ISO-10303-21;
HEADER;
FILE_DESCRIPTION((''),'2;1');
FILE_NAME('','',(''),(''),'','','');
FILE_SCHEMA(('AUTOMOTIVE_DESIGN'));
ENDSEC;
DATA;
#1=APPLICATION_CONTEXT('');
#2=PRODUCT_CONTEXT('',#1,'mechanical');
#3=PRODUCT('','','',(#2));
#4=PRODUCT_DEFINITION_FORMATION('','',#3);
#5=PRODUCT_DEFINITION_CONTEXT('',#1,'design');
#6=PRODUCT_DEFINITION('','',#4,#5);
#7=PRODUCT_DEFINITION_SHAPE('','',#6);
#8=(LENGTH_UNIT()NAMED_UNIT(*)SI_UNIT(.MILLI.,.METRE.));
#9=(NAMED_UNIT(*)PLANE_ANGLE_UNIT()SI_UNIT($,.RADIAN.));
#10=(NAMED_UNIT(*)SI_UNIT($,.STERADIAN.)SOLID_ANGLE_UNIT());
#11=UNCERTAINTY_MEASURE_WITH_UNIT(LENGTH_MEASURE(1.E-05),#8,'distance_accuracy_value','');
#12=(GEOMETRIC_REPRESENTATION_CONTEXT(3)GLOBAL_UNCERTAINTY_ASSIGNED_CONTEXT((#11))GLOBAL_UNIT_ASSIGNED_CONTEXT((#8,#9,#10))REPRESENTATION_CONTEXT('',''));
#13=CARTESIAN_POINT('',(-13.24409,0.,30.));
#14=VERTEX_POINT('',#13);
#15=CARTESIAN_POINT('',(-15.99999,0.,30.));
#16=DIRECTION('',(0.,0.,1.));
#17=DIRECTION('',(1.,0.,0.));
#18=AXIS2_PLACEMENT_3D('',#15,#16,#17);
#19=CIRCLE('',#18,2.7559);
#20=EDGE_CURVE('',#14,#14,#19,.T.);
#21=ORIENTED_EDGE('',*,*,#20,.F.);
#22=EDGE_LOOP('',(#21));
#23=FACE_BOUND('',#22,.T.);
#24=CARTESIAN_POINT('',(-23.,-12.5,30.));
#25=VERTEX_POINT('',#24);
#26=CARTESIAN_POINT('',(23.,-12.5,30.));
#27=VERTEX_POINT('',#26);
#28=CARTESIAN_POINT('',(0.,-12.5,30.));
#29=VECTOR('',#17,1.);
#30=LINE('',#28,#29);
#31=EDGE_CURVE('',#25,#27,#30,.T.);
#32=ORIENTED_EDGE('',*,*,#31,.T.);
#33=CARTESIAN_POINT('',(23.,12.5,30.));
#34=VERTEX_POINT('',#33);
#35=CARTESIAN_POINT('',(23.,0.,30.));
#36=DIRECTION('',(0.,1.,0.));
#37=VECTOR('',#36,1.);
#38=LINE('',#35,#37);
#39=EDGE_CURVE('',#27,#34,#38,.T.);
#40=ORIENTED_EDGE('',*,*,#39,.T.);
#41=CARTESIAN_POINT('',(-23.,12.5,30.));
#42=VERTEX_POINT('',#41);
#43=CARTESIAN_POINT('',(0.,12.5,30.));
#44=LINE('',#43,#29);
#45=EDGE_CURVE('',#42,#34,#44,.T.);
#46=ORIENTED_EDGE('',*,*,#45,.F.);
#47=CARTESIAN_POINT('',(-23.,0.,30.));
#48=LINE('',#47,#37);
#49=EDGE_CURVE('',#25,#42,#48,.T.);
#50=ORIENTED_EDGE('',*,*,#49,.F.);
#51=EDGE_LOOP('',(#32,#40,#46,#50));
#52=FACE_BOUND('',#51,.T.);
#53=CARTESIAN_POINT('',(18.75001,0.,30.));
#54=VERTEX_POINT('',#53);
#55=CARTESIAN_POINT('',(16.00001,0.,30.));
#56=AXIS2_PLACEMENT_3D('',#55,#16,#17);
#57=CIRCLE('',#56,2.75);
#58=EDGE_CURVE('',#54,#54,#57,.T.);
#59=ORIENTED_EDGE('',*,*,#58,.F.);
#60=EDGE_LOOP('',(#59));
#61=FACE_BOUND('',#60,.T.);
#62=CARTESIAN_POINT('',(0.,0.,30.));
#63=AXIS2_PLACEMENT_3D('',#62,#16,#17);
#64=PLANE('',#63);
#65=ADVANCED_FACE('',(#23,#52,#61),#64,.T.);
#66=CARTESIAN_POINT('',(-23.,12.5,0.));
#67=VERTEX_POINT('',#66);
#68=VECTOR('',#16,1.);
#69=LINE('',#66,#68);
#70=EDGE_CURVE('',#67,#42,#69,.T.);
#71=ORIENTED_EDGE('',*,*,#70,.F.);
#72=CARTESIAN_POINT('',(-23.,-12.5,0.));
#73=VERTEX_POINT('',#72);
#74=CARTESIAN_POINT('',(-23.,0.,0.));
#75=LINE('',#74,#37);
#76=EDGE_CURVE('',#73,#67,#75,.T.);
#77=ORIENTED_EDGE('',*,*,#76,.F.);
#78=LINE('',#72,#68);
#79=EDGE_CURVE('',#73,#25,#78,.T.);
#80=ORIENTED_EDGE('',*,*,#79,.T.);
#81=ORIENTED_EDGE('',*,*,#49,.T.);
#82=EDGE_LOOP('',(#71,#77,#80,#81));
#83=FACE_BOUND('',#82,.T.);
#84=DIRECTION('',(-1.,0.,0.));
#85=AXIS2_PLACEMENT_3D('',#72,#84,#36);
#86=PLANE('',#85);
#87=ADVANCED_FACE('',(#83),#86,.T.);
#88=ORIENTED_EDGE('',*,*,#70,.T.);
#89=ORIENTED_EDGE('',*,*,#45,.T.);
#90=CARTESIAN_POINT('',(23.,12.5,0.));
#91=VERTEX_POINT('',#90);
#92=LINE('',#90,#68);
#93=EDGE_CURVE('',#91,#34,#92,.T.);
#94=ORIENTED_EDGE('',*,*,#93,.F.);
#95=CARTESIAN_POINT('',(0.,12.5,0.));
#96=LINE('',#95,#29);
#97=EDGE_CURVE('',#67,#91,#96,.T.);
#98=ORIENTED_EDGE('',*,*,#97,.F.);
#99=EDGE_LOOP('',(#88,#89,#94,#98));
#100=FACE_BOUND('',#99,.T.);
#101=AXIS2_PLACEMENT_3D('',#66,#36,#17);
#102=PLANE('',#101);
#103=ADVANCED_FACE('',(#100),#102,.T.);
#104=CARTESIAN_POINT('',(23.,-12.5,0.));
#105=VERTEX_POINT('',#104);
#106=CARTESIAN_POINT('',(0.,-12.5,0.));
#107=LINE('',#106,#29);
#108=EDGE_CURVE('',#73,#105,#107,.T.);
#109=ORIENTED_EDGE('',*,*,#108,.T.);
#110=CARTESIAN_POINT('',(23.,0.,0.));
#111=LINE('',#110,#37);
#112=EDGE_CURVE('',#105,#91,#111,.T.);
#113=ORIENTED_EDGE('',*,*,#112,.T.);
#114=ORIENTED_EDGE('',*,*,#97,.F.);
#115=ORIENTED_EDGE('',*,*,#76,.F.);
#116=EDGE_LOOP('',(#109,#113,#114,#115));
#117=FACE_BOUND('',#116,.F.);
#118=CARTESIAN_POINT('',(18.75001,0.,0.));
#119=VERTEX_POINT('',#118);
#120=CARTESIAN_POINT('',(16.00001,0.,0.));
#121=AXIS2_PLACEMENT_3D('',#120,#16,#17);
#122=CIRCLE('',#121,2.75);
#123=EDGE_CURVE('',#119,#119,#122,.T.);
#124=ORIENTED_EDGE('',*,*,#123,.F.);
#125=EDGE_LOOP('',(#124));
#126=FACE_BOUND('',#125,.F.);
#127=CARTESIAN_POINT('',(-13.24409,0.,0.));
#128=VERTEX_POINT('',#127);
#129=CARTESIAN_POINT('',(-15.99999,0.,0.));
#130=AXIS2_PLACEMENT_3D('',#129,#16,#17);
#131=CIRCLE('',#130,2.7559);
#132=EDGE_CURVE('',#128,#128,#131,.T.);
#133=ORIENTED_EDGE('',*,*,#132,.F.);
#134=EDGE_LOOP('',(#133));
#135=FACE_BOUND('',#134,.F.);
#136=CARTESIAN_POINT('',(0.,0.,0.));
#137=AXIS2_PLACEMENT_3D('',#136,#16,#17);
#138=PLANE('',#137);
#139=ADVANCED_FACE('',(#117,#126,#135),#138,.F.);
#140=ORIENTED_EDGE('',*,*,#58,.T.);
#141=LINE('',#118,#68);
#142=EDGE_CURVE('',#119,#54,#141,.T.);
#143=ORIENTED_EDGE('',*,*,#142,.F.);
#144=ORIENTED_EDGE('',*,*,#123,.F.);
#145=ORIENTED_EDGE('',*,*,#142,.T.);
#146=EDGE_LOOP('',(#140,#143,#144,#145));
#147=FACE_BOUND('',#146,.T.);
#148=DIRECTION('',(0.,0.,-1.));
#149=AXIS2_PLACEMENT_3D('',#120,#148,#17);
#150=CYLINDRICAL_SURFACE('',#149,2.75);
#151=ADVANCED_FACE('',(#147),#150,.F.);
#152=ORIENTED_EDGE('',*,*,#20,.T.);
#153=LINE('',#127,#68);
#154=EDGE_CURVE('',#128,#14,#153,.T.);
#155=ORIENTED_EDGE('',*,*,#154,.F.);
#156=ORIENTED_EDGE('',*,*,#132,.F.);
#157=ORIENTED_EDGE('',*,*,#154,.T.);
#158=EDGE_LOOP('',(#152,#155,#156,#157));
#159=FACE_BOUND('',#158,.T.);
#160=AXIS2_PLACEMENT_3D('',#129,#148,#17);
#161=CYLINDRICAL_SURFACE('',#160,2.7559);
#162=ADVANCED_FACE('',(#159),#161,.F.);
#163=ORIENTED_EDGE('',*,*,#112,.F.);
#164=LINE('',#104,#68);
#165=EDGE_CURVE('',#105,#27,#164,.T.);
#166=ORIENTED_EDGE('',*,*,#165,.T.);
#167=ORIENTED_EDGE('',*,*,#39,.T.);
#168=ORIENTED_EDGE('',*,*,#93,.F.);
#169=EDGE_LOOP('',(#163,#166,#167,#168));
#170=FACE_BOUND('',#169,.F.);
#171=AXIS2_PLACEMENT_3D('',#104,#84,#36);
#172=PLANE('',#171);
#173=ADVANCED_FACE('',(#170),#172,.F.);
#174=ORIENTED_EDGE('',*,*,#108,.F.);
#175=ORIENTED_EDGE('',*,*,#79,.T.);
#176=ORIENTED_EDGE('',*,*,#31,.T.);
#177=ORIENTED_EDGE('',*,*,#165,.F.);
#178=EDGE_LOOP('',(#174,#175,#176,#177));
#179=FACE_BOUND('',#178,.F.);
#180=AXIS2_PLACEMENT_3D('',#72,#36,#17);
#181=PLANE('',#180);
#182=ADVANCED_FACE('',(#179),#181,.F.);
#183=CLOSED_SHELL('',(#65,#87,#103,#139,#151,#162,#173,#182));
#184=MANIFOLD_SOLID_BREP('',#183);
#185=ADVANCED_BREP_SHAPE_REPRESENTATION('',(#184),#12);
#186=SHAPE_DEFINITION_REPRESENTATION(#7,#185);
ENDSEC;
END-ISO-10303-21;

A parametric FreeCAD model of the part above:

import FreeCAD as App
import Part
import Sketcher
from FreeCAD import Vector

doc = App.newDocument("Part")
body = doc.addObject("PartDesign::Body", "Body")

# Sketch on XY plane
sketch1 = body.newObject("Sketcher::SketchObject", "Sketch")
sketch1.AttachmentSupport = (doc.getObject("XY_Plane"), [""])
sketch1.MapMode = "FlatFace"
sketch1.addGeometry(Part.LineSegment(Vector(-23, 12.5, 0), Vector(-23, -12.5, 0)), False)
sketch1.addGeometry(Part.LineSegment(Vector(-23, -12.5, 0), Vector(23, -12.5, 0)), False)
sketch1.addGeometry(Part.LineSegment(Vector(23, -12.5, 0), Vector(23, 12.5, 0)), False)
sketch1.addGeometry(Part.LineSegment(Vector(23, 12.5, 0), Vector(-23, 12.5, 0)), False)
sketch1.addGeometry(Part.Circle(Vector(-16, 0, 0), Vector(0, 0, 1), 2.8), False)
sketch1.addGeometry(Part.Circle(Vector(16, 0, 0), Vector(0, 0, 1), 2.8), False)
sketch1.addConstraint(Sketcher.Constraint("Coincident", 0, 2, 1, 1))
sketch1.addConstraint(Sketcher.Constraint("Coincident", 1, 2, 2, 1))
sketch1.addConstraint(Sketcher.Constraint("Coincident", 2, 2, 3, 1))
sketch1.addConstraint(Sketcher.Constraint("Coincident", 3, 2, 0, 1))
sketch1.addConstraint(Sketcher.Constraint("Vertical", 0))
sketch1.addConstraint(Sketcher.Constraint("Horizontal", 1))
sketch1.addConstraint(Sketcher.Constraint("Vertical", 2))
sketch1.addConstraint(Sketcher.Constraint("Horizontal", 3))
sketch1.addConstraint(Sketcher.Constraint("Symmetric", 0, 2, 2, 2, -1, 1))
sketch1.addConstraint(Sketcher.Constraint("PointOnObject", 4, 3, -1))
sketch1.addConstraint(Sketcher.Constraint("PointOnObject", 5, 3, -1))
sketch1.addConstraint(Sketcher.Constraint("Diameter", 5, 5.5))
sketch1.addConstraint(Sketcher.Constraint("DistanceX", 1, 1, 1, 2, 46.0))
sketch1.addConstraint(Sketcher.Constraint("DistanceY", 0, 2, 0, 1, 25.0))
sketch1.addConstraint(Sketcher.Constraint("DistanceX", 4, 3, 5, 3, 32.0))
sketch1.addConstraint(Sketcher.Constraint("Diameter", 4, 5.5118))
sketch1.addConstraint(Sketcher.Constraint("DistanceX", 4, 3, -1, 1, 15.99999))
pad1 = body.newObject("PartDesign::Pad", "Pad")
pad1.Profile = sketch1
pad1.Length = 30

doc.recompute()
